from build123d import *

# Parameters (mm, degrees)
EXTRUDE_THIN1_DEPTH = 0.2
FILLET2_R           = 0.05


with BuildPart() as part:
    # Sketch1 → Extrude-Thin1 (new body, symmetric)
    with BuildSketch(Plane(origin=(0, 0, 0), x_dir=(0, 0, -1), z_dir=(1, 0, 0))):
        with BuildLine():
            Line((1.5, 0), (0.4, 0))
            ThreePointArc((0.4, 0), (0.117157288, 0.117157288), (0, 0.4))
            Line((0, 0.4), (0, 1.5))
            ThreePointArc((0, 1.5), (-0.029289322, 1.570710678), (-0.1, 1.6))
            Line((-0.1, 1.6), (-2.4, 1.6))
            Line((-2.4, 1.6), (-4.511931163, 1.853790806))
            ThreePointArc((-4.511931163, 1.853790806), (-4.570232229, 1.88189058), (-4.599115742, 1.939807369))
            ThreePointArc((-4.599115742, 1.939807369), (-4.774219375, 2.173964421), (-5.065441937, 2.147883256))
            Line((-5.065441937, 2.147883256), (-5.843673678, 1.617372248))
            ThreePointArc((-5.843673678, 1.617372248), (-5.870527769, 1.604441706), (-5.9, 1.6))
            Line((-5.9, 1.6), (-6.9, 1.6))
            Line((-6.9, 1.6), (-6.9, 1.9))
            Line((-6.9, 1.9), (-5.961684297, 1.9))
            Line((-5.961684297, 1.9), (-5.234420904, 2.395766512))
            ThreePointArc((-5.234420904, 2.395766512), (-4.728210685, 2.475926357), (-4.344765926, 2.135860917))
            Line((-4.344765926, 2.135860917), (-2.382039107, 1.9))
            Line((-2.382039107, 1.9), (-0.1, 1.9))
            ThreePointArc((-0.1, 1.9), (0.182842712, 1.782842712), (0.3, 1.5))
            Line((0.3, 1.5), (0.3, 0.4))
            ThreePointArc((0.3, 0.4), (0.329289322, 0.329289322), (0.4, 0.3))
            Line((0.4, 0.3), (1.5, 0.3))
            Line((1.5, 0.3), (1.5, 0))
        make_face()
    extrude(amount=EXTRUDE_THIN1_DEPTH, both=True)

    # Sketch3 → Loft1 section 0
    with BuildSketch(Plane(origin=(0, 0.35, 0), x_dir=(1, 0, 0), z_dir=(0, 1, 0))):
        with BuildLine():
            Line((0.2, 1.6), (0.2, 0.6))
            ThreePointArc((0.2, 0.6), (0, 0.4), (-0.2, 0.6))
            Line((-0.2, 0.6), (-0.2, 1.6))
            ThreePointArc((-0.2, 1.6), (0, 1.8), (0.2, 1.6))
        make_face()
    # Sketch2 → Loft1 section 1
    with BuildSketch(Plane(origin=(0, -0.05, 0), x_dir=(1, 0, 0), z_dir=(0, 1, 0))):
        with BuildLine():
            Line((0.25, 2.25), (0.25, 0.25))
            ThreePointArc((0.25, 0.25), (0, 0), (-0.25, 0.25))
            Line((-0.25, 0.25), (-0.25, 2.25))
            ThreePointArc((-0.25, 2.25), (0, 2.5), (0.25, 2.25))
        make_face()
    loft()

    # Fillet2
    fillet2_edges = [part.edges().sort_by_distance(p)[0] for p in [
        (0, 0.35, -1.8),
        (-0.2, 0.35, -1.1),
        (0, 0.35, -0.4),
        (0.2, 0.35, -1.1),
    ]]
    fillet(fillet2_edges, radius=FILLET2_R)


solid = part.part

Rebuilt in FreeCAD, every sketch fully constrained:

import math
import FreeCAD as App
import Part
import Sketcher


def edges_at(feature, points):
    """Names of the edges that pass closest to the given points."""
    edges = feature.Shape.Edges
    near = lambda p: min(range(len(edges)), key=lambda i: edges[i].distToShape(Part.Vertex(*p))[0])
    return sorted({f"Edge{near(p) + 1}" for p in points})

doc = App.newDocument("Part")
body = doc.addObject("PartDesign::Body", "Body")

sketch1 = body.newObject("Sketcher::SketchObject", "Sketch")
sketch1.AttachmentSupport = (doc.getObject("YZ_Plane"), [""])
sketch1.MapMode = "FlatFace"
sketch1.addGeometry([
    Part.LineSegment(App.Vector(0, -0.4, 0), App.Vector(0, -1.5, 0)),
    Part.LineSegment(App.Vector(0, -1.5, 0), App.Vector(0.3, -1.5, 0)),
    Part.LineSegment(App.Vector(0.3, -1.5, 0), App.Vector(0.3, -0.4, 0)),
    Part.ArcOfCircle(Part.Circle(App.Vector(0.4, -0.4, 0), App.Vector(0, 0, 1), 0.1), math.radians(90), math.radians(180)),
    Part.LineSegment(App.Vector(0.4, -0.3, 0), App.Vector(1.5, -0.3, 0)),
    Part.ArcOfCircle(Part.Circle(App.Vector(1.5, 0.1, 0), App.Vector(0, 0, 1), 0.4), math.radians(-90), math.radians(0)),
    Part.LineSegment(App.Vector(1.9, 0.1, 0), App.Vector(1.9, 2.38, 0)),
    Part.LineSegment(App.Vector(1.9, 2.38, 0), App.Vector(2.14, 4.34, 0)),
    Part.ArcOfCircle(Part.Circle(App.Vector(1.9, 4.9, 0), App.Vector(0, 0, 1), 0.6), math.radians(-67), math.radians(34)),
    Part.LineSegment(App.Vector(2.4, 5.23, 0), App.Vector(1.9, 5.96, 0)),
    Part.LineSegment(App.Vector(1.9, 5.96, 0), App.Vector(1.9, 6.9, 0)),
    Part.LineSegment(App.Vector(1.9, 6.9, 0), App.Vector(1.6, 6.9, 0)),
    Part.LineSegment(App.Vector(1.6, 6.9, 0), App.Vector(1.6, 5.9, 0)),
    Part.ArcOfCircle(Part.Circle(App.Vector(1.7, 5.9, 0), App.Vector(0, 0, 1), 0.1), math.radians(-180), math.radians(-146)),
    Part.LineSegment(App.Vector(1.62, 5.84, 0), App.Vector(2.15, 5.07, 0)),
    Part.ArcOfCircle(Part.Circle(App.Vector(1.9, 4.9, 0), App.Vector(0, 0, 1), 0.3), math.radians(-82), math.radians(34)),
    Part.ArcOfCircle(Part.Circle(App.Vector(1.95, 4.5, 0), App.Vector(0, 0, 1), 0.1), math.radians(98), math.radians(173)),
    Part.LineSegment(App.Vector(1.85, 4.51, 0), App.Vector(1.6, 2.4, 0)),
    Part.LineSegment(App.Vector(1.6, 2.4, 0), App.Vector(1.6, 0.1, 0)),
    Part.ArcOfCircle(Part.Circle(App.Vector(1.5, 0.1, 0), App.Vector(0, 0, 1), 0.1), math.radians(-90), math.radians(0)),
    Part.LineSegment(App.Vector(1.5, 0, 0), App.Vector(0.4, 0, 0)),
    Part.ArcOfCircle(Part.Circle(App.Vector(0.4, -0.4, 0), App.Vector(0, 0, 1), 0.4), math.radians(90), math.radians(180)),
], False)
sketch1.addConstraint([
    Sketcher.Constraint("Coincident", 0, 2, 1, 1),
    Sketcher.Constraint("Coincident", 1, 2, 2, 1),
    Sketcher.Constraint("Tangent", 2, 2, 3, 2),
    Sketcher.Constraint("Tangent", 3, 1, 4, 1),
    Sketcher.Constraint("Tangent", 4, 2, 5, 1),
    Sketcher.Constraint("Tangent", 5, 2, 6, 1),
    Sketcher.Constraint("Coincident", 6, 2, 7, 1),
    Sketcher.Constraint("Coincident", 7, 2, 8, 1),
    Sketcher.Constraint("Tangent", 8, 2, 9, 1),
    Sketcher.Constraint("Coincident", 9, 2, 10, 1),
    Sketcher.Constraint("Coincident", 10, 2, 11, 1),
    Sketcher.Constraint("Coincident", 11, 2, 12, 1),
    Sketcher.Constraint("Tangent", 12, 2, 13, 1),
    Sketcher.Constraint("Tangent", 13, 2, 14, 1),
    Sketcher.Constraint("Tangent", 14, 2, 15, 2),
    Sketcher.Constraint("Tangent", 15, 1, 16, 1),
    Sketcher.Constraint("Tangent", 16, 2, 17, 1),
    Sketcher.Constraint("Coincident", 17, 2, 18, 1),
    Sketcher.Constraint("Tangent", 18, 2, 19, 2),
    Sketcher.Constraint("Tangent", 19, 1, 20, 1),
    Sketcher.Constraint("Tangent", 20, 2, 21, 1),
    Sketcher.Constraint("Tangent", 21, 2, 0, 1),
    Sketcher.Constraint("Vertical", 0),
    Sketcher.Constraint("Horizontal", 1),
    Sketcher.Constraint("Vertical", 2),
    Sketcher.Constraint("Horizontal", 4),
    Sketcher.Constraint("Vertical", 6),
    Sketcher.Constraint("Vertical", 10),
    Sketcher.Constraint("Horizontal", 11),
    Sketcher.Constraint("Vertical", 12),
    Sketcher.Constraint("Vertical", 18),
    Sketcher.Constraint("Horizontal", 20),
    Sketcher.Constraint("Coincident", 15, 3, 8, 3),
    Sketcher.Constraint("Coincident", 19, 3, 5, 3),
    Sketcher.Constraint("Coincident", 21, 3, 3, 3),
    Sketcher.Constraint("Equal", 3, 13),
    Sketcher.Constraint("Equal", 13, 16),
    Sketcher.Constraint("Equal", 16, 19),
    Sketcher.Constraint("PointOnObject", 0, 2, -2),
    Sketcher.Constraint("PointOnObject", 19, 1, -1),
    Sketcher.Constraint("Parallel", 9, 14),
    Sketcher.Constraint("Parallel", 7, 17),
    Sketcher.Constraint("Vertical", 15, 3, 5, 2),
    Sketcher.Constraint("Vertical", 6, 2, 9, 2),
    Sketcher.Constraint("Vertical", 12, 2, 17, 2),
    Sketcher.Constraint("Equal", 20, 0),
    Sketcher.Constraint("Radius", 3, 0.1),
    Sketcher.Constraint("Radius", 5, 0.4),
    Sketcher.Constraint("Radius", 8, 0.6),
    Sketcher.Constraint("Radius", 15, 0.3),
    Sketcher.Constraint("DistanceY", 12, 2, 12, 1, 1.0),
    Sketcher.Constraint("DistanceX", 4, 1, 4, 2, 1.1),
    Sketcher.Constraint("DistanceY", 18, 2, 18, 1, 2.3),
    Sketcher.Constraint("DistanceY", 0, 2, 16, 3, 6.0),
    Sketcher.Constraint("DistanceY", -1, 1, 13, 3, 5.9),
    Sketcher.Constraint("DistanceY", 6, 1, 6, 2, 2.282039),
    Sketcher.Constraint("Distance", 9, 0.880168),
])
pad1 = body.newObject("PartDesign::Pad", "Pad")
pad1.Profile = sketch1
pad1.Length = 0.4
pad1.Midplane = True

sketch2 = body.newObject("Sketcher::SketchObject", "Sketch001")
sketch2.AttachmentSupport = (doc.getObject("XZ_Plane"), [""])
sketch2.MapMode = "FlatFace"
sketch2.AttachmentOffset = App.Placement(App.Vector(0, 0, -0.35), App.Rotation())
sketch2.addGeometry([
    Part.LineSegment(App.Vector(0.2, -0.6, 0), App.Vector(0.2, -1.6, 0)),
    Part.ArcOfCircle(Part.Circle(App.Vector(0, -1.6, 0), App.Vector(0, 0, 1), 0.2), math.radians(180), math.radians(360)),
    Part.LineSegment(App.Vector(-0.2, -1.6, 0), App.Vector(-0.2, -0.6, 0)),
    Part.ArcOfCircle(Part.Circle(App.Vector(0, -0.6, 0), App.Vector(0, 0, 1), 0.2), math.radians(0), math.radians(180)),
], False)
sketch2.addConstraint([
    Sketcher.Constraint("Tangent", 0, 2, 1, 2),
    Sketcher.Constraint("Tangent", 1, 1, 2, 1),
    Sketcher.Constraint("Tangent", 2, 2, 3, 2),
    Sketcher.Constraint("Tangent", 3, 1, 0, 1),
    Sketcher.Constraint("Vertical", 0),
    Sketcher.Constraint("Vertical", 2),
    Sketcher.Constraint("PointOnObject", 1, 3, -2),
    Sketcher.Constraint("Radius", 1, 0.2),
    Sketcher.Constraint("DistanceY", 0, 2, 0, 1, 1.0),
    Sketcher.Constraint("DistanceY", 1, 3, -1, 1, 1.6),
])

sketch3 = body.newObject("Sketcher::SketchObject", "Sketch002")
sketch3.AttachmentSupport = (doc.getObject("XZ_Plane"), [""])
sketch3.MapMode = "FlatFace"
sketch3.AttachmentOffset = App.Placement(App.Vector(0, 0, 0.05), App.Rotation())
sketch3.addGeometry([
    Part.LineSegment(App.Vector(0.25, -0.25, 0), App.Vector(0.25, -2.25, 0)),
    Part.ArcOfCircle(Part.Circle(App.Vector(0, -2.25, 0), App.Vector(0, 0, 1), 0.25), math.radians(180), math.radians(360)),
    Part.LineSegment(App.Vector(-0.25, -2.25, 0), App.Vector(-0.25, -0.25, 0)),
    Part.ArcOfCircle(Part.Circle(App.Vector(0, -0.25, 0), App.Vector(0, 0, 1), 0.25), math.radians(0), math.radians(180)),
], False)
sketch3.addConstraint([
    Sketcher.Constraint("Tangent", 0, 2, 1, 2),
    Sketcher.Constraint("Tangent", 1, 1, 2, 1),
    Sketcher.Constraint("Tangent", 2, 2, 3, 2),
    Sketcher.Constraint("Tangent", 3, 1, 0, 1),
    Sketcher.Constraint("Vertical", 0),
    Sketcher.Constraint("Vertical", 2),
    Sketcher.Constraint("PointOnObject", 1, 3, -2),
    Sketcher.Constraint("DistanceY", 0, 2, 0, 1, 2.0),
    Sketcher.Constraint("Radius", 1, 0.25),
    Sketcher.Constraint("DistanceY", 1, 3, -1, 1, 2.25),
])

additiveloft = body.newObject("PartDesign::AdditiveLoft", "AdditiveLoft")
additiveloft.Profile = sketch2
additiveloft.Sections = [sketch3]
doc.recompute()

fillet = body.newObject("PartDesign::Fillet", "Fillet")
fillet.Base = (additiveloft, edges_at(additiveloft, [
    (0, 0.35, -1.8),
    (-0.2, 0.35, -1.1),
    (0, 0.35, -0.4),
    (0.2, 0.35, -1.1),
]))
fillet.Radius = 0.05

doc.recompute()
